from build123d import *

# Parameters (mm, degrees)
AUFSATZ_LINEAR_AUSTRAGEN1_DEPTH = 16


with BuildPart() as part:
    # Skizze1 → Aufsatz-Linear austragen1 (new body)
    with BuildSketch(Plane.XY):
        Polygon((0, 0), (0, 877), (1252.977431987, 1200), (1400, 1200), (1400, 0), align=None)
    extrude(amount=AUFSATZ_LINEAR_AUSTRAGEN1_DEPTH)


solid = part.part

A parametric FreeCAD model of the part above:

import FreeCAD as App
import Part
import Sketcher

V = App.Vector

doc = App.newDocument("Part")
body = doc.addObject("PartDesign::Body", "Body")

# Sketch on XY plane
sketch1 = doc.addObject("Sketcher::SketchObject", "Sketch")
body.addObject(sketch1)
sketch1.AttachmentSupport = (doc.XY_Plane, [""])
sketch1.MapMode = "FlatFace"
sketch1.addGeometry(Part.LineSegment(V(0, 877, 0), V(0, 0, 0)), False)
sketch1.addGeometry(Part.LineSegment(V(0, 0, 0), V(1400, 0, 0)), False)
sketch1.addGeometry(Part.LineSegment(V(1400, 0, 0), V(1400, 1200, 0)), False)
sketch1.addGeometry(Part.LineSegment(V(1400, 1200, 0), V(1252.977432, 1200, 0)), False)
sketch1.addGeometry(Part.LineSegment(V(1252.977432, 1200, 0), V(0, 877, 0)), False)
sketch1.addConstraint(Sketcher.Constraint("Coincident", 0, 2, 1, 1))
sketch1.addConstraint(Sketcher.Constraint("Coincident", 1, 2, 2, 1))
sketch1.addConstraint(Sketcher.Constraint("Coincident", 2, 2, 3, 1))
sketch1.addConstraint(Sketcher.Constraint("Coincident", 3, 2, 4, 1))
sketch1.addConstraint(Sketcher.Constraint("Coincident", 4, 2, 0, 1))
sketch1.addConstraint(Sketcher.Constraint("Vertical", 0))
sketch1.addConstraint(Sketcher.Constraint("Horizontal", 1))
sketch1.addConstraint(Sketcher.Constraint("Vertical", 2))
sketch1.addConstraint(Sketcher.Constraint("Horizontal", 3))
sketch1.addConstraint(Sketcher.Constraint("Coincident", 0, 2, -1, 1))
sketch1.addConstraint(Sketcher.Constraint("DistanceX", 1, 1, 1, 2, 1400.0))
sketch1.addConstraint(Sketcher.Constraint("DistanceY", 0, 2, 0, 1, 877.0))
sketch1.addConstraint(Sketcher.Constraint("DistanceY", 2, 1, 2, 2, 1200.0))
sketch1.addConstraint(Sketcher.Constraint("DistanceX", 3, 2, 3, 1, 147.022568))
pad1 = doc.addObject("PartDesign::Pad", "Pad")
body.addObject(pad1)
pad1.Profile = sketch1
pad1.Length = 16

doc.recompute()
